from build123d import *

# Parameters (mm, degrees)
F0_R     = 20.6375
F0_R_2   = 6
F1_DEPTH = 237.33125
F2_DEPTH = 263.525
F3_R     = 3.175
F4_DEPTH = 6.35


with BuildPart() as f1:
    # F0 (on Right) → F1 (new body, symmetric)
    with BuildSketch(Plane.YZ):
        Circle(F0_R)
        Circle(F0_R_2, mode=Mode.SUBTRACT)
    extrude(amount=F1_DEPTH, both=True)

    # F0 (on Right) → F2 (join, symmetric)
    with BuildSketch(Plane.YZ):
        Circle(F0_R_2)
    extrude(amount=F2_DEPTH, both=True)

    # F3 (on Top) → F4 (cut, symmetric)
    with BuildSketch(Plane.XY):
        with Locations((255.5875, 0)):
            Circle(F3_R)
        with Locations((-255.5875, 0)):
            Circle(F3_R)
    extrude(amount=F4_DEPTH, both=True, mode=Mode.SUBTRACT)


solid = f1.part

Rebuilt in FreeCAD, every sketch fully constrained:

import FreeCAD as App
import Part
import Sketcher

V = App.Vector
Q = App.Units.Quantity

doc = App.newDocument("Part")
params = doc.addObject("Spreadsheet::Sheet", "Params")
for row, (alias, value) in enumerate([
    ("sketch1_diameter", "1.625 in"),
    ("pad1_length", "18.6875 in"),
    ("pad2_length", "20.75 in"),
    ("sketch3_diameter", "0.25 in"),
    ("pocket1_length", "0.5 in"),
], start=1):
    params.set(f"A{row}", alias)
    params.set(f"B{row}", "=" + value)
    params.setAlias(f"B{row}", alias)

body = doc.addObject("PartDesign::Body", "Body")

sketch1 = body.newObject("Sketcher::SketchObject", "Sketch")
sketch1.AttachmentSupport = (doc.getObject("YZ_Plane"), [""])
sketch1.MapMode = "FlatFace"
sketch1.addGeometry([
    Part.Circle(V(0, 0, 0), V(0, 0, 1), 21),
    Part.Circle(V(0, 0, 0), V(0, 0, 1), 6),
], False)
sketch1.addConstraint([
    Sketcher.Constraint("Coincident", 0, 3, -1, 1),
    Sketcher.Constraint("Coincident", 1, 3, -1, 1),
    Sketcher.Constraint("Diameter", 0, Q("1.625 in")),
    Sketcher.Constraint("Diameter", 1, Q("12 mm")),
])
sketch1.setExpression("Constraints[2]", "Params.sketch1_diameter")
pad1 = body.newObject("PartDesign::Pad", "Pad")
pad1.Profile = sketch1
pad1.setExpression("Length", "Params.pad1_length")
pad1.Midplane = True

sketch2 = body.newObject("Sketcher::SketchObject", "Sketch001")
sketch2.AttachmentSupport = (doc.getObject("YZ_Plane"), [""])
sketch2.MapMode = "FlatFace"
sketch2.addGeometry(Part.Circle(V(0, 0, 0), V(0, 0, 1), 6), False)
sketch2.addConstraint([
    Sketcher.Constraint("Coincident", 0, 3, -1, 1),
    Sketcher.Constraint("Diameter", 0, Q("12 mm")),
])
pad2 = body.newObject("PartDesign::Pad", "Pad001")
pad2.Profile = sketch2
pad2.setExpression("Length", "Params.pad2_length")
pad2.Midplane = True

sketch3 = body.newObject("Sketcher::SketchObject", "Sketch002")
sketch3.AttachmentSupport = (doc.getObject("XY_Plane"), [""])
sketch3.MapMode = "FlatFace"
sketch3.addGeometry([
    Part.Circle(V(255.6, 0, 0), V(0, 0, 1), 3.2),
    Part.Circle(V(-255.6, 0, 0), V(0, 0, 1), 3.2),
], False)
sketch3.addConstraint([
    Sketcher.Constraint("Equal", 0, 1),
    Sketcher.Constraint("Symmetric", 0, 3, 1, 3, -1, 1),
    Sketcher.Constraint("PointOnObject", 0, 3, -1),
    Sketcher.Constraint("Diameter", 0, Q("0.25 in")),
    Sketcher.Constraint("DistanceX", -1, 1, 0, 3, Q("10.0625 in")),
])
sketch3.setExpression("Constraints[3]", "Params.sketch3_diameter")
pocket1 = body.newObject("PartDesign::Pocket", "Pocket")
pocket1.Profile = sketch3
pocket1.setExpression("Length", "Params.pocket1_length")
pocket1.Midplane = True

doc.recompute()
